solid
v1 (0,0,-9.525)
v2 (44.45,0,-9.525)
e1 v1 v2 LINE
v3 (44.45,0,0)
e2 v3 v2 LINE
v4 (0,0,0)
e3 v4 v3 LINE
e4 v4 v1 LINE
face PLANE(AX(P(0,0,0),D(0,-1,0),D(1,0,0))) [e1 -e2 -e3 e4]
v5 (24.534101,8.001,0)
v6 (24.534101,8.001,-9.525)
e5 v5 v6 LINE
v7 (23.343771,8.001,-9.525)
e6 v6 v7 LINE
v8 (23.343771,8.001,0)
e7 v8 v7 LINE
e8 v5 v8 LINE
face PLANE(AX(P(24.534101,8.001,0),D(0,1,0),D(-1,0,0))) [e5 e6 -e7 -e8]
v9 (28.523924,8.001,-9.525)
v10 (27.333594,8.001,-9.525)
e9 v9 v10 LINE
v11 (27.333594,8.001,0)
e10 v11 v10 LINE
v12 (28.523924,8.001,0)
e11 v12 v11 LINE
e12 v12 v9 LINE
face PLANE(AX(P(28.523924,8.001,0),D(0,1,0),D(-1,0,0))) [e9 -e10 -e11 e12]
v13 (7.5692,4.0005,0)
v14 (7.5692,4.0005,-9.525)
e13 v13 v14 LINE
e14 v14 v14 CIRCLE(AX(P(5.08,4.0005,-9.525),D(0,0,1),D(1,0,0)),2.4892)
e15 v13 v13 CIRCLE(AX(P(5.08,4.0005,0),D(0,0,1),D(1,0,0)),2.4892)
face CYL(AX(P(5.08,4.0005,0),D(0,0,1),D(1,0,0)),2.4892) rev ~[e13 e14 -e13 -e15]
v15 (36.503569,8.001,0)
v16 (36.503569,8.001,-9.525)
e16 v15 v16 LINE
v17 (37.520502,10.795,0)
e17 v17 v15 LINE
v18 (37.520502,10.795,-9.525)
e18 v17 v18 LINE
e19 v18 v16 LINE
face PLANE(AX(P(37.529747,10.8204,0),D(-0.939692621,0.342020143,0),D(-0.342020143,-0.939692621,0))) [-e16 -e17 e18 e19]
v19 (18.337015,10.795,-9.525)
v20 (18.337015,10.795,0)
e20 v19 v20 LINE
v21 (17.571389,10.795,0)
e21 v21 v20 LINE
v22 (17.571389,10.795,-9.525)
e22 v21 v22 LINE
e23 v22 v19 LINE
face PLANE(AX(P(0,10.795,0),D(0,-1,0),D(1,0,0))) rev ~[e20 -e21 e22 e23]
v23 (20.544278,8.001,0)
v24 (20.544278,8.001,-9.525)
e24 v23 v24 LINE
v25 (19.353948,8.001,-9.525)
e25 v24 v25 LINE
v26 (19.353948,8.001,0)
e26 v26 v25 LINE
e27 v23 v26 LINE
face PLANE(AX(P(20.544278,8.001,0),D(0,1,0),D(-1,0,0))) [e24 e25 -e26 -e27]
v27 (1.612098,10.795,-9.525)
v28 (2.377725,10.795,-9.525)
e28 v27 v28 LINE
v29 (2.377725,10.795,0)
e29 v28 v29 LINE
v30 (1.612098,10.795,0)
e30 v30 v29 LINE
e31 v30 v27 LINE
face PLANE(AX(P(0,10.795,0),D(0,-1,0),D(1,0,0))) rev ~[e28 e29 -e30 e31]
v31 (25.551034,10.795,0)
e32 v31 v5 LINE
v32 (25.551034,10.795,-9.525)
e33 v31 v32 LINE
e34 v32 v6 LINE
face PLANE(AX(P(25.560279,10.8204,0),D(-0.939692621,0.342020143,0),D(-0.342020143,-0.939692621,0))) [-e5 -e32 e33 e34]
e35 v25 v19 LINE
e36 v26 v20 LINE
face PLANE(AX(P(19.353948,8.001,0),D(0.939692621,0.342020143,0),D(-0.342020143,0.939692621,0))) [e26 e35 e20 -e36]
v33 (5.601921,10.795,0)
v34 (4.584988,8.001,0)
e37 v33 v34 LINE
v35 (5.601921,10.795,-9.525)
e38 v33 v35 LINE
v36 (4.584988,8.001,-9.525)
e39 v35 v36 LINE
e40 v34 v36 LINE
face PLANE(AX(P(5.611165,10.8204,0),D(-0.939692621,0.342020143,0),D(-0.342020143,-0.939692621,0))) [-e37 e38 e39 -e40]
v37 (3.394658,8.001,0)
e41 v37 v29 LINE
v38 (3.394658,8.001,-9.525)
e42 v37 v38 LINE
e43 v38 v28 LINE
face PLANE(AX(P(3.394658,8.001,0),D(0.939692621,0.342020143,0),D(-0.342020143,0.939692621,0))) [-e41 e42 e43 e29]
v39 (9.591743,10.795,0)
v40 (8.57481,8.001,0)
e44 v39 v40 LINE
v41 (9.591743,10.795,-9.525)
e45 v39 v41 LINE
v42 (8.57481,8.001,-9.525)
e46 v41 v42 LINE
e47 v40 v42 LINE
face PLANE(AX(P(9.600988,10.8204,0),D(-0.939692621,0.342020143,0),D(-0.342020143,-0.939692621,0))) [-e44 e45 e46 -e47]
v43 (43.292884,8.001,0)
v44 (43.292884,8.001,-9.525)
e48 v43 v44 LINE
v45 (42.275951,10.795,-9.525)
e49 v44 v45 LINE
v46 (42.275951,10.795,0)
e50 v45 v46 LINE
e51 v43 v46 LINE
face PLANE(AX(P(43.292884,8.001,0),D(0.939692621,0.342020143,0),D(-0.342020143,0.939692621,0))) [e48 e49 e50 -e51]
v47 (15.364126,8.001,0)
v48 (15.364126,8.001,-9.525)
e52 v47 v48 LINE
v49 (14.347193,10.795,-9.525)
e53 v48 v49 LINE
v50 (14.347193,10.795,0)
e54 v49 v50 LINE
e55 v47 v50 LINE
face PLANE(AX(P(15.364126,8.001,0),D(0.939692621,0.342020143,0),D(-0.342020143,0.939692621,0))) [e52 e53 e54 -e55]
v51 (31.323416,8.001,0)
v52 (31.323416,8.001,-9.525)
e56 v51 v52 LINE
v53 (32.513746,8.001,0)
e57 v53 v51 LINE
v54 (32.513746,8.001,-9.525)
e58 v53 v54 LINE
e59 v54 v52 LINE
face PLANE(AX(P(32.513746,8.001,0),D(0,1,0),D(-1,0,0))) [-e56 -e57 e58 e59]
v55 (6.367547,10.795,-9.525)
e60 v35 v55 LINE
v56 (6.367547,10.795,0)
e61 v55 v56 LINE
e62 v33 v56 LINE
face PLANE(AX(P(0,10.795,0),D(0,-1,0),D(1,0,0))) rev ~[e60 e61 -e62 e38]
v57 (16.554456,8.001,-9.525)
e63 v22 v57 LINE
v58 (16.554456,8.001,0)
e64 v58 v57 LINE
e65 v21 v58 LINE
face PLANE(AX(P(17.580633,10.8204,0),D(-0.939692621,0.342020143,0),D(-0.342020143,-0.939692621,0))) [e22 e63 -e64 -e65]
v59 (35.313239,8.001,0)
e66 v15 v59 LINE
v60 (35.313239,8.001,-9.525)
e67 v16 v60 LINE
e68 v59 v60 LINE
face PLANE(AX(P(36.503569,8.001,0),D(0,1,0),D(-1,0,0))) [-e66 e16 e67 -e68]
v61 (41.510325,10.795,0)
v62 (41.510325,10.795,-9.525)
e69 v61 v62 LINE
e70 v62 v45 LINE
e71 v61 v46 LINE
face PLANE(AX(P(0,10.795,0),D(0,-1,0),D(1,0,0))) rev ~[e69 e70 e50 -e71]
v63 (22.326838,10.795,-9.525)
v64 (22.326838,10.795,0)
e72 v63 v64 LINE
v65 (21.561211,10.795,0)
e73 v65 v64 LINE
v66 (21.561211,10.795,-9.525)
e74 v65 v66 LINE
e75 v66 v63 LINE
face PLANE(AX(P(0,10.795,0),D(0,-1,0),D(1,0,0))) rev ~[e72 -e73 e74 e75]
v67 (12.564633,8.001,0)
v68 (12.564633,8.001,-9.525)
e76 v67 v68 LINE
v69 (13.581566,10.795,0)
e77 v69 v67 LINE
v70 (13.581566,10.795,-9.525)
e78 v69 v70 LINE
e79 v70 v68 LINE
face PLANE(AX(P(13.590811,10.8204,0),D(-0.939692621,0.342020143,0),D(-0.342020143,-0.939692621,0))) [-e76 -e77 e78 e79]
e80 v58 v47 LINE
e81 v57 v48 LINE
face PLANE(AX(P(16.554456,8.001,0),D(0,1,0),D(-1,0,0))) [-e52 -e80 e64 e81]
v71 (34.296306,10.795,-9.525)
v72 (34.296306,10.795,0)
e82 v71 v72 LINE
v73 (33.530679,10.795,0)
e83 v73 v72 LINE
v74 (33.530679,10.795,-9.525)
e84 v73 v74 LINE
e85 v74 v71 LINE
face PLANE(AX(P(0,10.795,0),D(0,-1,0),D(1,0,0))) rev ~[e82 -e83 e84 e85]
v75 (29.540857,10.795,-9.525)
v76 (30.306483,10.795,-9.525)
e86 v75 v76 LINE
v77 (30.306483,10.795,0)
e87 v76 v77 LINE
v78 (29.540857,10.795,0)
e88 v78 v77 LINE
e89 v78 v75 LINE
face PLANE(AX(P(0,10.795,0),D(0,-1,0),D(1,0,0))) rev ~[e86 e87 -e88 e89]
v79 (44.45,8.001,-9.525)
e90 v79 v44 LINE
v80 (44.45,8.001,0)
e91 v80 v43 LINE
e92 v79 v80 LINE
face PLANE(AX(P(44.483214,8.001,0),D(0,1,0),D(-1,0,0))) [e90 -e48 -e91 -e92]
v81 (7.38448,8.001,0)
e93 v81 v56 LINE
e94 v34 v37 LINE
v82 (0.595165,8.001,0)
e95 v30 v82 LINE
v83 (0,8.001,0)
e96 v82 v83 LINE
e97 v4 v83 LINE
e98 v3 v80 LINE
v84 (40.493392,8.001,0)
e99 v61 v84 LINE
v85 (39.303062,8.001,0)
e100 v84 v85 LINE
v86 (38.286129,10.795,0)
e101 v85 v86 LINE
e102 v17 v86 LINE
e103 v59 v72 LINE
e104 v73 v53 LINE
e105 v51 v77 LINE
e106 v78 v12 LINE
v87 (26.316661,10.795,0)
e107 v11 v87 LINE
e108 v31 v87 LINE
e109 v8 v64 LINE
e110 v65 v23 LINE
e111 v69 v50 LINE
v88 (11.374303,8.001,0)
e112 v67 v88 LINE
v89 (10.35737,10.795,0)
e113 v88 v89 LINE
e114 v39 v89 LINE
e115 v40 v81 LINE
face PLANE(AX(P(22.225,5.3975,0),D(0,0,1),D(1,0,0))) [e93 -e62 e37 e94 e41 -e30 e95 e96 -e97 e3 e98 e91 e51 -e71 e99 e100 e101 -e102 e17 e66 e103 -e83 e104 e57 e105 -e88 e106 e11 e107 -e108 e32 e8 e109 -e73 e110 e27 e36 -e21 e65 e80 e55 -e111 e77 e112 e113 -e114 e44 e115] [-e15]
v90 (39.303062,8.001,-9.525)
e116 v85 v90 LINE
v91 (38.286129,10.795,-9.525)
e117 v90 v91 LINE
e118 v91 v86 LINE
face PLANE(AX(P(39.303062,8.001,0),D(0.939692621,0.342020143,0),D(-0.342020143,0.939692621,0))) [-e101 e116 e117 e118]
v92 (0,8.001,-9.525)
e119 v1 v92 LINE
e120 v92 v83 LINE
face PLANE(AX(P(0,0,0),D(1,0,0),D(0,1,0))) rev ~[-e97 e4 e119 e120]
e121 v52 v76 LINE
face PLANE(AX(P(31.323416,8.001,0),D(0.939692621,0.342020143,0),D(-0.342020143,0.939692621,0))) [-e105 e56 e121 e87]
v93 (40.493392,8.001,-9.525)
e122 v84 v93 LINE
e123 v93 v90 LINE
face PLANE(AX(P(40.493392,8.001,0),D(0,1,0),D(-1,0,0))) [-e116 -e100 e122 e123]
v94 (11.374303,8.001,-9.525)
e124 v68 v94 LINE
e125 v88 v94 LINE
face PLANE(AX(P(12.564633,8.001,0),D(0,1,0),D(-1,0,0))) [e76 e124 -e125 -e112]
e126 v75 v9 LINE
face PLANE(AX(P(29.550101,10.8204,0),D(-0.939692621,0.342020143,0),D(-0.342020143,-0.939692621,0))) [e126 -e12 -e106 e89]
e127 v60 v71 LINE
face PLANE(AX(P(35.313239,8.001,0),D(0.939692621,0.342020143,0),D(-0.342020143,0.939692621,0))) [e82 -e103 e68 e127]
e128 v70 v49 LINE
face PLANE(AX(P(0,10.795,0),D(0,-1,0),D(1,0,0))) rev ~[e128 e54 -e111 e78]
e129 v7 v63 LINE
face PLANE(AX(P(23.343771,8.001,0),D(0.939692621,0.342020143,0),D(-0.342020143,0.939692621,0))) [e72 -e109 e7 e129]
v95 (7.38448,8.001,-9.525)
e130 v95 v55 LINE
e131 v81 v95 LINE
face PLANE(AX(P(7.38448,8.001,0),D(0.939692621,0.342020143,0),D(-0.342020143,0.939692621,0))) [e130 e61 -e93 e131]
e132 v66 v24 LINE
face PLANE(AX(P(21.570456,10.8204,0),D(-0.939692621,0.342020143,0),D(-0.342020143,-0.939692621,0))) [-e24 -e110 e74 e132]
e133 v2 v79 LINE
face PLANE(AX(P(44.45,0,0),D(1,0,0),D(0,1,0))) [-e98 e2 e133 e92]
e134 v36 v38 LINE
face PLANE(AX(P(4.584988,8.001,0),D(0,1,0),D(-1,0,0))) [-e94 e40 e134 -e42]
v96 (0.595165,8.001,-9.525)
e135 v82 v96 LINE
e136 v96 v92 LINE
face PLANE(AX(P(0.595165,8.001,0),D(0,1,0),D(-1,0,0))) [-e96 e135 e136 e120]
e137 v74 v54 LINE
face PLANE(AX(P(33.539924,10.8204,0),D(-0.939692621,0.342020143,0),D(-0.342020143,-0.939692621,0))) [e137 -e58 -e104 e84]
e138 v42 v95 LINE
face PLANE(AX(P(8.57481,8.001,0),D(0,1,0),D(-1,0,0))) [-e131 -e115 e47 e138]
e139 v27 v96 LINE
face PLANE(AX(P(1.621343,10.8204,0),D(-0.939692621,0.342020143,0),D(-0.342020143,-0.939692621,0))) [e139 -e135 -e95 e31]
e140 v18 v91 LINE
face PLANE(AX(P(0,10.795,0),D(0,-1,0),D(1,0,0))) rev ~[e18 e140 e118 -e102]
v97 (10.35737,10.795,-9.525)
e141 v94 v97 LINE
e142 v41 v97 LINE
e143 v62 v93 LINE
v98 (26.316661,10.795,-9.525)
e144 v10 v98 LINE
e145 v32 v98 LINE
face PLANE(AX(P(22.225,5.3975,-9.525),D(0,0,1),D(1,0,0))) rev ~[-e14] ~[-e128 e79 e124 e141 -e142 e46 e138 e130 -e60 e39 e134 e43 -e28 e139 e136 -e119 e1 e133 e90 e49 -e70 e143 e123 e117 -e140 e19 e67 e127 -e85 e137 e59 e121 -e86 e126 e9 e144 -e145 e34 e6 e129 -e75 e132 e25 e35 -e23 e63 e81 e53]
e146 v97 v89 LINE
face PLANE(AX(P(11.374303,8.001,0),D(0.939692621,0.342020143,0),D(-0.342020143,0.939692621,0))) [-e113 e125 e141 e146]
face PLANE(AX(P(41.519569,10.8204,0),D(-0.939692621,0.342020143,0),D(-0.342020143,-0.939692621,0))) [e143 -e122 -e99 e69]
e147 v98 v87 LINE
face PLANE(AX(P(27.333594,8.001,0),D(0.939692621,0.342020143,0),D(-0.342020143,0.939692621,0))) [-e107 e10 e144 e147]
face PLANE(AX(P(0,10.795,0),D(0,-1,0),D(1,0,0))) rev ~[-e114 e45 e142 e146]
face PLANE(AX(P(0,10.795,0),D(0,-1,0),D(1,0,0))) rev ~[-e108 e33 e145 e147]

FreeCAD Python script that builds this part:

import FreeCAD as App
import Part
import Sketcher

V = App.Vector
Q = App.Units.Quantity


def add_polygon(sketch, points):
    """Adds a closed chain of lines whose ends are joined by coincident constraints."""
    first, n = sketch.GeometryCount, len(points)
    for a, b in zip(points, points[1:] + points[:1]):
        sketch.addGeometry(Part.LineSegment(App.Vector(*a, 0), App.Vector(*b, 0)), False)
    for i in range(n):
        sketch.addConstraint(Sketcher.Constraint("Coincident", first + i, 2, first + (i + 1) % n, 1))

doc = App.newDocument("Part")
body = doc.addObject("PartDesign::Body", "Body")

sketch1 = body.newObject("Sketcher::SketchObject", "Sketch")
sketch1.AttachmentSupport = (doc.getObject("XY_Plane"), [""])
sketch1.MapMode = "FlatFace"
add_polygon(sketch1, [(0, 11), (0, 0), (44, 0), (44, 11)])
sketch1.addConstraint([
    Sketcher.Constraint("Vertical", 0),
    Sketcher.Constraint("Horizontal", 1),
    Sketcher.Constraint("Vertical", 2),
    Sketcher.Constraint("Horizontal", 3),
    Sketcher.Constraint("Coincident", 0, 2, -1, 1),
    Sketcher.Constraint("DistanceX", 1, 1, 1, 2, Q("1.75 in")),
    Sketcher.Constraint("DistanceY", 0, 2, 0, 1, Q("0.425 in")),
])
pad1 = body.newObject("PartDesign::Pad", "Pad")
pad1.Profile = sketch1
pad1.Length = Q("0.375 in")
pad1.Reversed = True

sketch2 = body.newObject("Sketcher::SketchObject", "Sketch001")
sketch2.AttachmentSupport = (doc.getObject("XY_Plane"), [""])
sketch2.MapMode = "FlatFace"
add_polygon(sketch2, [(-0.6, 8), (0.6, 8), (1.6, 10.8), (-1.6, 10.8)])
sketch2.addConstraint([
    Sketcher.Constraint("Horizontal", 0),
    Sketcher.Constraint("Horizontal", 2),
    Sketcher.Constraint("Equal", 1, 3),
    Sketcher.Constraint("Angle", 1, Q("70 deg")),
    Sketcher.Constraint("DistanceY", -1, 1, 0, 2, Q("0.315 in")),
    Sketcher.Constraint("DistanceY", -1, 1, 1, 2, Q("0.426 in")),
    Sketcher.Constraint("DistanceX", 0, 1, 0, 2, Q("1.19033 mm")),
    Sketcher.Constraint("DistanceX", -1, 1, 0, 2, Q("0.595165 mm")),
])
pocket1 = body.newObject("PartDesign::Pocket", "Pocket")
pocket1.Profile = sketch2
pocket1.Type = "ThroughAll"
doc.recompute()

linearpattern = body.newObject("PartDesign::LinearPattern", "LinearPattern")
linearpattern.Originals = [pocket1]
linearpattern.Direction = (doc.getObject("X_Axis"), [""])
linearpattern.Mode = "offset"
linearpattern.Offset = 3.989823
linearpattern.Occurrences = 12
body.Tip = linearpattern

sketch3 = body.newObject("Sketcher::SketchObject", "Sketch002")
sketch3.AttachmentSupport = (doc.getObject("XY_Plane"), [""])
sketch3.MapMode = "FlatFace"
sketch3.addGeometry(Part.Circle(V(5.1, 4, 0), V(0, 0, 1), 2.5), False)
sketch3.addConstraint([
    Sketcher.Constraint("Diameter", 0, Q("0.196 in")),
    Sketcher.Constraint("DistanceX", -1, 1, 0, 3, Q("0.2 in")),
    Sketcher.Constraint("DistanceY", -1, 1, 0, 3, Q("0.1575 in")),
])
pocket2 = body.newObject("PartDesign::Pocket", "Pocket001")
pocket2.Profile = sketch3
pocket2.Length = Q("0.57 in")

doc.recompute()
